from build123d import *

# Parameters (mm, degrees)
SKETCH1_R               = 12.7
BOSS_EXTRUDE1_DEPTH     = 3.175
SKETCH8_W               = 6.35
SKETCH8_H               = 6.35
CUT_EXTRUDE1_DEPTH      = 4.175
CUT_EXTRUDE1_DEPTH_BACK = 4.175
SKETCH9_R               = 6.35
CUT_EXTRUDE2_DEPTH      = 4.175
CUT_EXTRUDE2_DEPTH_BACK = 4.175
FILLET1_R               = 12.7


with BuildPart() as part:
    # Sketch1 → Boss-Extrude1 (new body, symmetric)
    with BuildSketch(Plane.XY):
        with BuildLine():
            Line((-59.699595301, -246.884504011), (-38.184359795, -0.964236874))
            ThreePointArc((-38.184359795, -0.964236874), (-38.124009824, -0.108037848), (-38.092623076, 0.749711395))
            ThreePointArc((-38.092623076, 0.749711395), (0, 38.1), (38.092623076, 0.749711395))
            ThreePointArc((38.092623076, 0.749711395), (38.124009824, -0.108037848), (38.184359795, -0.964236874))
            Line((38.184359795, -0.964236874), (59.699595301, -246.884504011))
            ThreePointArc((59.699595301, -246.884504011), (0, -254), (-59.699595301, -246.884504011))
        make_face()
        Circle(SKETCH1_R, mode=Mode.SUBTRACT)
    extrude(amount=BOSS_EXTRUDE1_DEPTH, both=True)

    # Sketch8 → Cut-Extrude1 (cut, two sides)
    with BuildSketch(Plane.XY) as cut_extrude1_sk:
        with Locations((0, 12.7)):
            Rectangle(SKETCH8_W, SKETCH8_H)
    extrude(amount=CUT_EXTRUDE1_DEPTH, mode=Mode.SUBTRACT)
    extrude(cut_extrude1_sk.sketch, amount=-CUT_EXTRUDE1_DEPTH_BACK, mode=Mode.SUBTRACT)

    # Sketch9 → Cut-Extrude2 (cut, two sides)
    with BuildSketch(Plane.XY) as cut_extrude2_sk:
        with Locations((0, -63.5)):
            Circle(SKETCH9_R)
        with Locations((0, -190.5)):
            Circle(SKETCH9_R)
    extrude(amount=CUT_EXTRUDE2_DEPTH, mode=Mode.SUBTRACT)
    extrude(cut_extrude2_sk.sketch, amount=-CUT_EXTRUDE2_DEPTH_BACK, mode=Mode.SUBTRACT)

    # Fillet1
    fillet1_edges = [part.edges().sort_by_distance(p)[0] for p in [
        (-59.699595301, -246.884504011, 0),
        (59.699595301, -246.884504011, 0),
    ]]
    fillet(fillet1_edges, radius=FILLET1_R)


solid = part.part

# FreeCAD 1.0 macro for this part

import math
import FreeCAD as App
import Part
import Sketcher
Q = App.Units.Quantity


def edges_at(feature, points):
    """Names of the edges that pass closest to the given points."""
    edges = feature.Shape.Edges
    near = lambda p: min(range(len(edges)), key=lambda i: edges[i].distToShape(Part.Vertex(*p))[0])
    return sorted({f"Edge{near(p) + 1}" for p in points})


def add_polygon(sketch, points):
    """Adds a closed chain of lines whose ends are joined by coincident constraints."""
    first, n = sketch.GeometryCount, len(points)
    for a, b in zip(points, points[1:] + points[:1]):
        sketch.addGeometry(Part.LineSegment(App.Vector(*a, 0), App.Vector(*b, 0)), False)
    for i in range(n):
        sketch.addConstraint(Sketcher.Constraint("Coincident", first + i, 2, first + (i + 1) % n, 1))

doc = App.newDocument("Part")
params = doc.addObject("Spreadsheet::Sheet", "Params")
for row, (alias, value) in enumerate([
    ("sketch1_diameter", "1 in"),
    ("sketch1_radius", "10 in"),
    ("sketch1_radius2", "1 in"),
    ("sketch1_radius3", "1.5 in"),
    ("pad1_length", "0.25 in"),
    ("sketch2_width", "0.25 in"),
    ("sketch3_diameter", "0.5 in"),
    ("fillet_radius", "0.5 in"),
], start=1):
    params.set(f"A{row}", alias)
    params.set(f"B{row}", "=" + value)
    params.setAlias(f"B{row}", alias)

body = doc.addObject("PartDesign::Body", "Body")

# Sketch on XY plane
sketch1 = body.newObject("Sketcher::SketchObject", "Sketch")
sketch1.AttachmentSupport = (doc.getObject("XY_Plane"), [""])
sketch1.MapMode = "FlatFace"
sketch1.addGeometry([
    Part.LineSegment(App.Vector(-38.18436, -0.964237, 0), App.Vector(-59.699595, -246.884504, 0)),  # 0
    Part.ArcOfCircle(Part.Circle(App.Vector(0, 0, 0), App.Vector(0, 0, 1), 254), math.radians(-103.59385), math.radians(-76.40615)),  # 1
    Part.LineSegment(App.Vector(59.699595, -246.884504, 0), App.Vector(38.18436, -0.964237, 0)),  # 2
    Part.ArcOfCircle(Part.Circle(App.Vector(63.487706, 1.249519, 0), App.Vector(0, 0, 1), 25.400001), math.radians(-178.872492), math.radians(-175)),  # 3
    Part.ArcOfCircle(Part.Circle(App.Vector(0, 0, 0), App.Vector(0, 0, 1), 38.1), math.radians(1.127508), math.radians(178.872492)),  # 4
    Part.ArcOfCircle(Part.Circle(App.Vector(-63.487706, 1.249519, 0), App.Vector(0, 0, 1), 25.400001), math.radians(-5), math.radians(-1.127508)),  # 5
    Part.Circle(App.Vector(0, 0, 0), App.Vector(0, 0, 1), 12.7),  # 6
], False)
sketch1.addConstraint([
    Sketcher.Constraint("Coincident", 0, 2, 1, 1),
    Sketcher.Constraint("Coincident", 1, 2, 2, 1),
    Sketcher.Constraint("Tangent", 2, 2, 3, 2),
    Sketcher.Constraint("Tangent", 3, 1, 4, 1),
    Sketcher.Constraint("Tangent", 4, 2, 5, 2),
    Sketcher.Constraint("Tangent", 5, 1, 0, 1),
    Sketcher.Constraint("Coincident", 1, 3, -1, 1),
    Sketcher.Constraint("Coincident", 4, 3, -1, 1),
    Sketcher.Constraint("Coincident", 6, 3, -1, 1),
    Sketcher.Constraint("Equal", 3, 5),
    Sketcher.Constraint("Symmetric", 2, 2, 5, 1, -2),
    Sketcher.Constraint("Diameter", 6, Q("1 in")),
    Sketcher.Constraint("Radius", 1, Q("10 in")),
    Sketcher.Constraint("Radius", 3, Q("1 in")),
    Sketcher.Constraint("Radius", 4, Q("1.5 in")),
    Sketcher.Constraint("Angle", 0, Q("-95 deg")),
    Sketcher.Constraint("DistanceX", 0, 2, 3, 3, 123.187301),
])
sketch1.setExpression("Constraints[11]", "Params.sketch1_diameter")
sketch1.setExpression("Constraints[12]", "Params.sketch1_radius")
sketch1.setExpression("Constraints[13]", "Params.sketch1_radius2")
sketch1.setExpression("Constraints[14]", "Params.sketch1_radius3")
pad1 = body.newObject("PartDesign::Pad", "Pad")
pad1.Profile = sketch1
pad1.setExpression("Length", "Params.pad1_length")
pad1.Midplane = True

# Sketch on XY plane
sketch2 = body.newObject("Sketcher::SketchObject", "Sketch001")
sketch2.AttachmentSupport = (doc.getObject("XY_Plane"), [""])
sketch2.MapMode = "FlatFace"
add_polygon(sketch2, [(-3.175, 15.875), (-3.175, 9.525), (3.175, 9.525), (3.175, 15.875)])  # lines 0-3
sketch2.addConstraint([
    Sketcher.Constraint("Vertical", 0),
    Sketcher.Constraint("Horizontal", 1),
    Sketcher.Constraint("Vertical", 2),
    Sketcher.Constraint("Horizontal", 3),
    Sketcher.Constraint("Equal", 3, 0),
    Sketcher.Constraint("DistanceX", 1, 1, 1, 2, Q("0.25 in")),
    Sketcher.Constraint("DistanceX", 0, 2, -1, 1, Q("0.125 in")),
    Sketcher.Constraint("DistanceY", -1, 1, 0, 2, Q("0.375 in")),
])
sketch2.setExpression("Constraints[9]", "Params.sketch2_width")
pocket1 = body.newObject("PartDesign::Pocket", "Pocket")
pocket1.Profile = sketch2
pocket1.Type = "ThroughAll"
pocket1.Midplane = True

# Sketch on XY plane
sketch3 = body.newObject("Sketcher::SketchObject", "Sketch002")
sketch3.AttachmentSupport = (doc.getObject("XY_Plane"), [""])
sketch3.MapMode = "FlatFace"
sketch3.addGeometry([
    Part.Circle(App.Vector(0, -63.5, 0), App.Vector(0, 0, 1), 6.35),
    Part.Circle(App.Vector(0, -190.5, 0), App.Vector(0, 0, 1), 6.35),
], False)
sketch3.addConstraint([
    Sketcher.Constraint("Equal", 0, 1),
    Sketcher.Constraint("PointOnObject", 0, 3, -2),
    Sketcher.Constraint("PointOnObject", 1, 3, -2),
    Sketcher.Constraint("Diameter", 0, Q("0.5 in")),
    Sketcher.Constraint("DistanceY", 1, 3, 0, 3, Q("5 in")),
    Sketcher.Constraint("DistanceY", 0, 3, -1, 1, Q("2.5 in")),
])
sketch3.setExpression("Constraints[3]", "Params.sketch3_diameter")
pocket2 = body.newObject("PartDesign::Pocket", "Pocket001")
pocket2.Profile = sketch3
pocket2.Type = "ThroughAll"
pocket2.Midplane = True
doc.recompute()

fillet = body.newObject("PartDesign::Fillet", "Fillet")
fillet.Base = (pocket2, edges_at(pocket2, [(-59.7, -246.885, 0), (59.7, -246.885, 0)]))
fillet.setExpression("Radius", "Params.fillet_radius")

doc.recompute()
